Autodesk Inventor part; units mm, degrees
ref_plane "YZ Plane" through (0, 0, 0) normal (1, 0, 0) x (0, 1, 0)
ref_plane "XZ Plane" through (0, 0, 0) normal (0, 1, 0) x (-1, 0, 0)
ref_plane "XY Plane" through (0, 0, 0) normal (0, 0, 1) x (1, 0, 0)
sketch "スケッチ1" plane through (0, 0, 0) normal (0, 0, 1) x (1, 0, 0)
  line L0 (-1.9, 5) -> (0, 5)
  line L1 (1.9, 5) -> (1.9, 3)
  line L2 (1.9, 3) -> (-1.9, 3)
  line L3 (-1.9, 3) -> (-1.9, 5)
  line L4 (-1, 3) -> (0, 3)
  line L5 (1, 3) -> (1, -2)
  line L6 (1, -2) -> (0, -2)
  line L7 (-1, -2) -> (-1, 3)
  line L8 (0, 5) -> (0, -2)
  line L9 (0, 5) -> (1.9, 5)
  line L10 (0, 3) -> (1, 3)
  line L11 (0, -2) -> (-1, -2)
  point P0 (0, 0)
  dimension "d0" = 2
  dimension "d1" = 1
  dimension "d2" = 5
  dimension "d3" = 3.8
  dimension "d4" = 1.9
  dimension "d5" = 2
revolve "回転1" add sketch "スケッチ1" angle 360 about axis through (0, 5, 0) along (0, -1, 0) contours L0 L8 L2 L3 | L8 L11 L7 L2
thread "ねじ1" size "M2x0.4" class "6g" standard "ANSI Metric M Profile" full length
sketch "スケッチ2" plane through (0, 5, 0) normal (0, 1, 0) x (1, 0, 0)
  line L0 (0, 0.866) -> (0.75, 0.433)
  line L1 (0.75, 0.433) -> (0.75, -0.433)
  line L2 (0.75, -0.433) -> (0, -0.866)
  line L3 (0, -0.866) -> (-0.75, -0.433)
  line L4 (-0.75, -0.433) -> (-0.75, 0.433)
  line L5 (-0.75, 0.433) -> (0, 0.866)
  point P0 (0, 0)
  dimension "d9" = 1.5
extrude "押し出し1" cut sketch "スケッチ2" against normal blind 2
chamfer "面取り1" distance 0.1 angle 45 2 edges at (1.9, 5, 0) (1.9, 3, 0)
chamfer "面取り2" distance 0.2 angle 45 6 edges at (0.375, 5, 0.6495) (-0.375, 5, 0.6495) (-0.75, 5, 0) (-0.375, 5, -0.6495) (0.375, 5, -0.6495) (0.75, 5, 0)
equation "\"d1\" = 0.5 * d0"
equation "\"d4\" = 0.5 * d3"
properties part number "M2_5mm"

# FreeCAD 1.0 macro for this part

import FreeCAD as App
import Part
import Sketcher
Q = App.Units.Quantity


def edges_at(feature, points):
    """Names of the edges that pass closest to the given points."""
    edges = feature.Shape.Edges
    near = lambda p: min(range(len(edges)), key=lambda i: edges[i].distToShape(Part.Vertex(*p))[0])
    return sorted({f"Edge{near(p) + 1}" for p in points})


def add_polygon(sketch, points):
    """Adds a closed chain of lines whose ends are joined by coincident constraints."""
    first, n = sketch.GeometryCount, len(points)
    for a, b in zip(points, points[1:] + points[:1]):
        sketch.addGeometry(Part.LineSegment(App.Vector(*a, 0), App.Vector(*b, 0)), False)
    for i in range(n):
        sketch.addConstraint(Sketcher.Constraint("Coincident", first + i, 2, first + (i + 1) % n, 1))

doc = App.newDocument("Part")
body = doc.addObject("PartDesign::Body", "Body")

# Sketch on XY plane
sketch1 = body.newObject("Sketcher::SketchObject", "Sketch")
sketch1.AttachmentSupport = (doc.getObject("XY_Plane"), [""])
sketch1.MapMode = "FlatFace"
add_polygon(sketch1, [(0, 5), (-1.9, 5), (-1.9, 3), (-1, 3), (-1, -2), (0, -2)])  # lines 0-5
sketch1.addConstraint([
    Sketcher.Constraint("Horizontal", 0),
    Sketcher.Constraint("Vertical", 1),
    Sketcher.Constraint("Horizontal", 2),
    Sketcher.Constraint("Vertical", 3),
    Sketcher.Constraint("Horizontal", 4),
    Sketcher.Constraint("Vertical", 5),
    Sketcher.Constraint("PointOnObject", 4, 2, -2),
    Sketcher.Constraint("DistanceX", 4, 1, 4, 2, Q("1 mm")),
    Sketcher.Constraint("DistanceY", 1, 2, 1, 1, Q("2 mm")),
    Sketcher.Constraint("DistanceY", 3, 2, 3, 1, Q("5 mm")),
    Sketcher.Constraint("DistanceX", 0, 2, 0, 1, Q("1.9 mm")),
    Sketcher.Constraint("DistanceY", -1, 1, 0, 2, Q("5 mm")),
])
revolution = body.newObject("PartDesign::Revolution", "Revolution")
revolution.Profile = sketch1
revolution.ReferenceAxis = (sketch1, ["V_Axis"])
revolution.Angle = 360

# Sketch on XZ plane
sketch2 = body.newObject("Sketcher::SketchObject", "Sketch001")
sketch2.AttachmentSupport = (doc.getObject("XZ_Plane"), [""])
sketch2.MapMode = "FlatFace"
sketch2.AttachmentOffset = App.Placement(App.Vector(0, 0, -5), App.Rotation())
add_polygon(sketch2, [(0.75, -0.433), (0, -0.866), (-0.75, -0.433), (-0.75, 0.433), (0, 0.866), (0.75, 0.433)])  # lines 0-5
sketch2.addConstraint([
    Sketcher.Constraint("Vertical", 2),
    Sketcher.Constraint("Vertical", 5),
    Sketcher.Constraint("Symmetric", 0, 2, 3, 2, -1, 1),
    Sketcher.Constraint("Symmetric", 1, 2, 4, 2, -1, 1),
    Sketcher.Constraint("PointOnObject", 0, 2, -2),
    Sketcher.Constraint("Parallel", 0, 3),
    Sketcher.Constraint("Horizontal", 2, 2, 4, 2),
    Sketcher.Constraint("DistanceX", 2, 2, 4, 2, Q("1.5 mm")),
    Sketcher.Constraint("Angle", 0, Q("-150.0007 deg")),
    Sketcher.Constraint("DistanceY", 2, 1, 2, 2, Q("0.866 mm")),
])
pocket1 = body.newObject("PartDesign::Pocket", "Pocket")
pocket1.Profile = sketch2
pocket1.Length = 2
pocket1.Reversed = True
doc.recompute()

chamfer = body.newObject("PartDesign::Chamfer", "Chamfer")
chamfer.Base = (pocket1, edges_at(pocket1, [(1.9, 5, 0), (1.9, 3, 0)]))
chamfer.Size = 0.1
doc.recompute()

chamfer2 = body.newObject("PartDesign::Chamfer", "Chamfer001")
chamfer2.Base = (chamfer, edges_at(chamfer, [
    (0.375, 5, 0.649),
    (-0.375, 5, 0.649),
    (-0.75, 5, 0),
    (-0.375, 5, -0.649),
    (0.375, 5, -0.649),
    (0.75, 5, 0),
]))
chamfer2.Size = 0.2

doc.recompute()
